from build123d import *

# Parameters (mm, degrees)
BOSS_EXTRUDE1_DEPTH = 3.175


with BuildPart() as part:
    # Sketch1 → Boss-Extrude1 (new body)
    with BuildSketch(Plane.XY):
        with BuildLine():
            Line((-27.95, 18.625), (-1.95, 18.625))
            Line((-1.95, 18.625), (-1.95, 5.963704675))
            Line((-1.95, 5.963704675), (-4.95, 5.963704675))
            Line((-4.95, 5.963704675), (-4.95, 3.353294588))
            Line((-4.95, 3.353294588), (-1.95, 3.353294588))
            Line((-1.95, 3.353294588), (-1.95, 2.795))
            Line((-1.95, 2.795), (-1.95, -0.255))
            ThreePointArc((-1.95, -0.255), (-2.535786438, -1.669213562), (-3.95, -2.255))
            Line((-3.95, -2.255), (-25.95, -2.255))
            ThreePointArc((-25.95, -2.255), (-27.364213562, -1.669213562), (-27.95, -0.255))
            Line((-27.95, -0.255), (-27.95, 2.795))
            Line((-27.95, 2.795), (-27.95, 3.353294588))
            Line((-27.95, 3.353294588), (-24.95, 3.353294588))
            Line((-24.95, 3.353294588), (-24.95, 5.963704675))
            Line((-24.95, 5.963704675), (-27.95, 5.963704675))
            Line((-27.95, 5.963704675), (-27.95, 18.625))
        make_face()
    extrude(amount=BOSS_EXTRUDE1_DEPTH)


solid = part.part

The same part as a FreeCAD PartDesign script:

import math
import FreeCAD as App
import Part
import Sketcher

doc = App.newDocument("Part")
body = doc.addObject("PartDesign::Body", "Body")

# Sketch on XY plane
sketch1 = body.newObject("Sketcher::SketchObject", "Sketch")
sketch1.AttachmentSupport = (doc.getObject("XY_Plane"), [""])
sketch1.MapMode = "FlatFace"
sketch1.addGeometry([
    Part.LineSegment(App.Vector(-1.9, 18.6, 0), App.Vector(-27.9, 18.6, 0)),  # 0
    Part.LineSegment(App.Vector(-27.9, 18.6, 0), App.Vector(-27.9, 6, 0)),  # 1
    Part.LineSegment(App.Vector(-27.9, 6, 0), App.Vector(-24.9, 6, 0)),  # 2
    Part.LineSegment(App.Vector(-24.9, 6, 0), App.Vector(-24.9, 3.4, 0)),  # 3
    Part.LineSegment(App.Vector(-24.9, 3.4, 0), App.Vector(-27.9, 3.4, 0)),  # 4
    Part.LineSegment(App.Vector(-27.9, 3.4, 0), App.Vector(-27.9, -0.3, 0)),  # 5
    Part.ArcOfCircle(Part.Circle(App.Vector(-25.9, -0.3, 0), App.Vector(0, 0, 1), 2), math.radians(-180), math.radians(-90)),  # 6
    Part.LineSegment(App.Vector(-25.9, -2.3, 0), App.Vector(-4, -2.3, 0)),  # 7
    Part.ArcOfCircle(Part.Circle(App.Vector(-4, -0.3, 0), App.Vector(0, 0, 1), 2), math.radians(-90), math.radians(0)),  # 8
    Part.LineSegment(App.Vector(-1.9, -0.3, 0), App.Vector(-1.9, 3.4, 0)),  # 9
    Part.LineSegment(App.Vector(-1.9, 3.4, 0), App.Vector(-5, 3.4, 0)),  # 10
    Part.LineSegment(App.Vector(-5, 3.4, 0), App.Vector(-5, 6, 0)),  # 11
    Part.LineSegment(App.Vector(-5, 6, 0), App.Vector(-1.9, 6, 0)),  # 12
    Part.LineSegment(App.Vector(-1.9, 6, 0), App.Vector(-1.9, 18.6, 0)),  # 13
], False)
sketch1.addConstraint([
    Sketcher.Constraint("Coincident", 0, 2, 1, 1),
    Sketcher.Constraint("Coincident", 1, 2, 2, 1),
    Sketcher.Constraint("Coincident", 2, 2, 3, 1),
    Sketcher.Constraint("Coincident", 3, 2, 4, 1),
    Sketcher.Constraint("Coincident", 4, 2, 5, 1),
    Sketcher.Constraint("Tangent", 5, 2, 6, 1),
    Sketcher.Constraint("Tangent", 6, 2, 7, 1),
    Sketcher.Constraint("Tangent", 7, 2, 8, 1),
    Sketcher.Constraint("Tangent", 8, 2, 9, 1),
    Sketcher.Constraint("Coincident", 9, 2, 10, 1),
    Sketcher.Constraint("Coincident", 10, 2, 11, 1),
    Sketcher.Constraint("Coincident", 11, 2, 12, 1),
    Sketcher.Constraint("Coincident", 12, 2, 13, 1),
    Sketcher.Constraint("Coincident", 13, 2, 0, 1),
    Sketcher.Constraint("Horizontal", 0),
    Sketcher.Constraint("Vertical", 1),
    Sketcher.Constraint("Horizontal", 2),
    Sketcher.Constraint("Vertical", 3),
    Sketcher.Constraint("Horizontal", 4),
    Sketcher.Constraint("Vertical", 5),
    Sketcher.Constraint("Horizontal", 7),
    Sketcher.Constraint("Vertical", 9),
    Sketcher.Constraint("Horizontal", 10),
    Sketcher.Constraint("Vertical", 11),
    Sketcher.Constraint("Horizontal", 12),
    Sketcher.Constraint("Vertical", 13),
    Sketcher.Constraint("Equal", 6, 8),
    Sketcher.Constraint("Horizontal", 4, 2, 9, 2),
    Sketcher.Constraint("Horizontal", 2, 2, 11, 2),
    Sketcher.Constraint("Vertical", 1, 2, 4, 2),
    Sketcher.Constraint("Vertical", 9, 2, 12, 2),
    Sketcher.Constraint("Equal", 4, 10),
    Sketcher.Constraint("Radius", 6, 2.0),
    Sketcher.Constraint("DistanceX", 0, 2, 0, 1, 26.0),
    Sketcher.Constraint("DistanceX", 2, 1, 2, 2, 3.0),
    Sketcher.Constraint("DistanceX", 6, 3, -1, 1, 25.95),
    Sketcher.Constraint("DistanceY", 6, 3, 0, 2, 18.88),
    Sketcher.Constraint("DistanceY", 6, 3, -1, 1, 0.255),
    Sketcher.Constraint("DistanceY", 3, 2, 3, 1, 2.61041),
    Sketcher.Constraint("DistanceY", 1, 2, 1, 1, 12.661295),
])
pad1 = body.newObject("PartDesign::Pad", "Pad")
pad1.Profile = sketch1
pad1.Length = 3.175

doc.recompute()
